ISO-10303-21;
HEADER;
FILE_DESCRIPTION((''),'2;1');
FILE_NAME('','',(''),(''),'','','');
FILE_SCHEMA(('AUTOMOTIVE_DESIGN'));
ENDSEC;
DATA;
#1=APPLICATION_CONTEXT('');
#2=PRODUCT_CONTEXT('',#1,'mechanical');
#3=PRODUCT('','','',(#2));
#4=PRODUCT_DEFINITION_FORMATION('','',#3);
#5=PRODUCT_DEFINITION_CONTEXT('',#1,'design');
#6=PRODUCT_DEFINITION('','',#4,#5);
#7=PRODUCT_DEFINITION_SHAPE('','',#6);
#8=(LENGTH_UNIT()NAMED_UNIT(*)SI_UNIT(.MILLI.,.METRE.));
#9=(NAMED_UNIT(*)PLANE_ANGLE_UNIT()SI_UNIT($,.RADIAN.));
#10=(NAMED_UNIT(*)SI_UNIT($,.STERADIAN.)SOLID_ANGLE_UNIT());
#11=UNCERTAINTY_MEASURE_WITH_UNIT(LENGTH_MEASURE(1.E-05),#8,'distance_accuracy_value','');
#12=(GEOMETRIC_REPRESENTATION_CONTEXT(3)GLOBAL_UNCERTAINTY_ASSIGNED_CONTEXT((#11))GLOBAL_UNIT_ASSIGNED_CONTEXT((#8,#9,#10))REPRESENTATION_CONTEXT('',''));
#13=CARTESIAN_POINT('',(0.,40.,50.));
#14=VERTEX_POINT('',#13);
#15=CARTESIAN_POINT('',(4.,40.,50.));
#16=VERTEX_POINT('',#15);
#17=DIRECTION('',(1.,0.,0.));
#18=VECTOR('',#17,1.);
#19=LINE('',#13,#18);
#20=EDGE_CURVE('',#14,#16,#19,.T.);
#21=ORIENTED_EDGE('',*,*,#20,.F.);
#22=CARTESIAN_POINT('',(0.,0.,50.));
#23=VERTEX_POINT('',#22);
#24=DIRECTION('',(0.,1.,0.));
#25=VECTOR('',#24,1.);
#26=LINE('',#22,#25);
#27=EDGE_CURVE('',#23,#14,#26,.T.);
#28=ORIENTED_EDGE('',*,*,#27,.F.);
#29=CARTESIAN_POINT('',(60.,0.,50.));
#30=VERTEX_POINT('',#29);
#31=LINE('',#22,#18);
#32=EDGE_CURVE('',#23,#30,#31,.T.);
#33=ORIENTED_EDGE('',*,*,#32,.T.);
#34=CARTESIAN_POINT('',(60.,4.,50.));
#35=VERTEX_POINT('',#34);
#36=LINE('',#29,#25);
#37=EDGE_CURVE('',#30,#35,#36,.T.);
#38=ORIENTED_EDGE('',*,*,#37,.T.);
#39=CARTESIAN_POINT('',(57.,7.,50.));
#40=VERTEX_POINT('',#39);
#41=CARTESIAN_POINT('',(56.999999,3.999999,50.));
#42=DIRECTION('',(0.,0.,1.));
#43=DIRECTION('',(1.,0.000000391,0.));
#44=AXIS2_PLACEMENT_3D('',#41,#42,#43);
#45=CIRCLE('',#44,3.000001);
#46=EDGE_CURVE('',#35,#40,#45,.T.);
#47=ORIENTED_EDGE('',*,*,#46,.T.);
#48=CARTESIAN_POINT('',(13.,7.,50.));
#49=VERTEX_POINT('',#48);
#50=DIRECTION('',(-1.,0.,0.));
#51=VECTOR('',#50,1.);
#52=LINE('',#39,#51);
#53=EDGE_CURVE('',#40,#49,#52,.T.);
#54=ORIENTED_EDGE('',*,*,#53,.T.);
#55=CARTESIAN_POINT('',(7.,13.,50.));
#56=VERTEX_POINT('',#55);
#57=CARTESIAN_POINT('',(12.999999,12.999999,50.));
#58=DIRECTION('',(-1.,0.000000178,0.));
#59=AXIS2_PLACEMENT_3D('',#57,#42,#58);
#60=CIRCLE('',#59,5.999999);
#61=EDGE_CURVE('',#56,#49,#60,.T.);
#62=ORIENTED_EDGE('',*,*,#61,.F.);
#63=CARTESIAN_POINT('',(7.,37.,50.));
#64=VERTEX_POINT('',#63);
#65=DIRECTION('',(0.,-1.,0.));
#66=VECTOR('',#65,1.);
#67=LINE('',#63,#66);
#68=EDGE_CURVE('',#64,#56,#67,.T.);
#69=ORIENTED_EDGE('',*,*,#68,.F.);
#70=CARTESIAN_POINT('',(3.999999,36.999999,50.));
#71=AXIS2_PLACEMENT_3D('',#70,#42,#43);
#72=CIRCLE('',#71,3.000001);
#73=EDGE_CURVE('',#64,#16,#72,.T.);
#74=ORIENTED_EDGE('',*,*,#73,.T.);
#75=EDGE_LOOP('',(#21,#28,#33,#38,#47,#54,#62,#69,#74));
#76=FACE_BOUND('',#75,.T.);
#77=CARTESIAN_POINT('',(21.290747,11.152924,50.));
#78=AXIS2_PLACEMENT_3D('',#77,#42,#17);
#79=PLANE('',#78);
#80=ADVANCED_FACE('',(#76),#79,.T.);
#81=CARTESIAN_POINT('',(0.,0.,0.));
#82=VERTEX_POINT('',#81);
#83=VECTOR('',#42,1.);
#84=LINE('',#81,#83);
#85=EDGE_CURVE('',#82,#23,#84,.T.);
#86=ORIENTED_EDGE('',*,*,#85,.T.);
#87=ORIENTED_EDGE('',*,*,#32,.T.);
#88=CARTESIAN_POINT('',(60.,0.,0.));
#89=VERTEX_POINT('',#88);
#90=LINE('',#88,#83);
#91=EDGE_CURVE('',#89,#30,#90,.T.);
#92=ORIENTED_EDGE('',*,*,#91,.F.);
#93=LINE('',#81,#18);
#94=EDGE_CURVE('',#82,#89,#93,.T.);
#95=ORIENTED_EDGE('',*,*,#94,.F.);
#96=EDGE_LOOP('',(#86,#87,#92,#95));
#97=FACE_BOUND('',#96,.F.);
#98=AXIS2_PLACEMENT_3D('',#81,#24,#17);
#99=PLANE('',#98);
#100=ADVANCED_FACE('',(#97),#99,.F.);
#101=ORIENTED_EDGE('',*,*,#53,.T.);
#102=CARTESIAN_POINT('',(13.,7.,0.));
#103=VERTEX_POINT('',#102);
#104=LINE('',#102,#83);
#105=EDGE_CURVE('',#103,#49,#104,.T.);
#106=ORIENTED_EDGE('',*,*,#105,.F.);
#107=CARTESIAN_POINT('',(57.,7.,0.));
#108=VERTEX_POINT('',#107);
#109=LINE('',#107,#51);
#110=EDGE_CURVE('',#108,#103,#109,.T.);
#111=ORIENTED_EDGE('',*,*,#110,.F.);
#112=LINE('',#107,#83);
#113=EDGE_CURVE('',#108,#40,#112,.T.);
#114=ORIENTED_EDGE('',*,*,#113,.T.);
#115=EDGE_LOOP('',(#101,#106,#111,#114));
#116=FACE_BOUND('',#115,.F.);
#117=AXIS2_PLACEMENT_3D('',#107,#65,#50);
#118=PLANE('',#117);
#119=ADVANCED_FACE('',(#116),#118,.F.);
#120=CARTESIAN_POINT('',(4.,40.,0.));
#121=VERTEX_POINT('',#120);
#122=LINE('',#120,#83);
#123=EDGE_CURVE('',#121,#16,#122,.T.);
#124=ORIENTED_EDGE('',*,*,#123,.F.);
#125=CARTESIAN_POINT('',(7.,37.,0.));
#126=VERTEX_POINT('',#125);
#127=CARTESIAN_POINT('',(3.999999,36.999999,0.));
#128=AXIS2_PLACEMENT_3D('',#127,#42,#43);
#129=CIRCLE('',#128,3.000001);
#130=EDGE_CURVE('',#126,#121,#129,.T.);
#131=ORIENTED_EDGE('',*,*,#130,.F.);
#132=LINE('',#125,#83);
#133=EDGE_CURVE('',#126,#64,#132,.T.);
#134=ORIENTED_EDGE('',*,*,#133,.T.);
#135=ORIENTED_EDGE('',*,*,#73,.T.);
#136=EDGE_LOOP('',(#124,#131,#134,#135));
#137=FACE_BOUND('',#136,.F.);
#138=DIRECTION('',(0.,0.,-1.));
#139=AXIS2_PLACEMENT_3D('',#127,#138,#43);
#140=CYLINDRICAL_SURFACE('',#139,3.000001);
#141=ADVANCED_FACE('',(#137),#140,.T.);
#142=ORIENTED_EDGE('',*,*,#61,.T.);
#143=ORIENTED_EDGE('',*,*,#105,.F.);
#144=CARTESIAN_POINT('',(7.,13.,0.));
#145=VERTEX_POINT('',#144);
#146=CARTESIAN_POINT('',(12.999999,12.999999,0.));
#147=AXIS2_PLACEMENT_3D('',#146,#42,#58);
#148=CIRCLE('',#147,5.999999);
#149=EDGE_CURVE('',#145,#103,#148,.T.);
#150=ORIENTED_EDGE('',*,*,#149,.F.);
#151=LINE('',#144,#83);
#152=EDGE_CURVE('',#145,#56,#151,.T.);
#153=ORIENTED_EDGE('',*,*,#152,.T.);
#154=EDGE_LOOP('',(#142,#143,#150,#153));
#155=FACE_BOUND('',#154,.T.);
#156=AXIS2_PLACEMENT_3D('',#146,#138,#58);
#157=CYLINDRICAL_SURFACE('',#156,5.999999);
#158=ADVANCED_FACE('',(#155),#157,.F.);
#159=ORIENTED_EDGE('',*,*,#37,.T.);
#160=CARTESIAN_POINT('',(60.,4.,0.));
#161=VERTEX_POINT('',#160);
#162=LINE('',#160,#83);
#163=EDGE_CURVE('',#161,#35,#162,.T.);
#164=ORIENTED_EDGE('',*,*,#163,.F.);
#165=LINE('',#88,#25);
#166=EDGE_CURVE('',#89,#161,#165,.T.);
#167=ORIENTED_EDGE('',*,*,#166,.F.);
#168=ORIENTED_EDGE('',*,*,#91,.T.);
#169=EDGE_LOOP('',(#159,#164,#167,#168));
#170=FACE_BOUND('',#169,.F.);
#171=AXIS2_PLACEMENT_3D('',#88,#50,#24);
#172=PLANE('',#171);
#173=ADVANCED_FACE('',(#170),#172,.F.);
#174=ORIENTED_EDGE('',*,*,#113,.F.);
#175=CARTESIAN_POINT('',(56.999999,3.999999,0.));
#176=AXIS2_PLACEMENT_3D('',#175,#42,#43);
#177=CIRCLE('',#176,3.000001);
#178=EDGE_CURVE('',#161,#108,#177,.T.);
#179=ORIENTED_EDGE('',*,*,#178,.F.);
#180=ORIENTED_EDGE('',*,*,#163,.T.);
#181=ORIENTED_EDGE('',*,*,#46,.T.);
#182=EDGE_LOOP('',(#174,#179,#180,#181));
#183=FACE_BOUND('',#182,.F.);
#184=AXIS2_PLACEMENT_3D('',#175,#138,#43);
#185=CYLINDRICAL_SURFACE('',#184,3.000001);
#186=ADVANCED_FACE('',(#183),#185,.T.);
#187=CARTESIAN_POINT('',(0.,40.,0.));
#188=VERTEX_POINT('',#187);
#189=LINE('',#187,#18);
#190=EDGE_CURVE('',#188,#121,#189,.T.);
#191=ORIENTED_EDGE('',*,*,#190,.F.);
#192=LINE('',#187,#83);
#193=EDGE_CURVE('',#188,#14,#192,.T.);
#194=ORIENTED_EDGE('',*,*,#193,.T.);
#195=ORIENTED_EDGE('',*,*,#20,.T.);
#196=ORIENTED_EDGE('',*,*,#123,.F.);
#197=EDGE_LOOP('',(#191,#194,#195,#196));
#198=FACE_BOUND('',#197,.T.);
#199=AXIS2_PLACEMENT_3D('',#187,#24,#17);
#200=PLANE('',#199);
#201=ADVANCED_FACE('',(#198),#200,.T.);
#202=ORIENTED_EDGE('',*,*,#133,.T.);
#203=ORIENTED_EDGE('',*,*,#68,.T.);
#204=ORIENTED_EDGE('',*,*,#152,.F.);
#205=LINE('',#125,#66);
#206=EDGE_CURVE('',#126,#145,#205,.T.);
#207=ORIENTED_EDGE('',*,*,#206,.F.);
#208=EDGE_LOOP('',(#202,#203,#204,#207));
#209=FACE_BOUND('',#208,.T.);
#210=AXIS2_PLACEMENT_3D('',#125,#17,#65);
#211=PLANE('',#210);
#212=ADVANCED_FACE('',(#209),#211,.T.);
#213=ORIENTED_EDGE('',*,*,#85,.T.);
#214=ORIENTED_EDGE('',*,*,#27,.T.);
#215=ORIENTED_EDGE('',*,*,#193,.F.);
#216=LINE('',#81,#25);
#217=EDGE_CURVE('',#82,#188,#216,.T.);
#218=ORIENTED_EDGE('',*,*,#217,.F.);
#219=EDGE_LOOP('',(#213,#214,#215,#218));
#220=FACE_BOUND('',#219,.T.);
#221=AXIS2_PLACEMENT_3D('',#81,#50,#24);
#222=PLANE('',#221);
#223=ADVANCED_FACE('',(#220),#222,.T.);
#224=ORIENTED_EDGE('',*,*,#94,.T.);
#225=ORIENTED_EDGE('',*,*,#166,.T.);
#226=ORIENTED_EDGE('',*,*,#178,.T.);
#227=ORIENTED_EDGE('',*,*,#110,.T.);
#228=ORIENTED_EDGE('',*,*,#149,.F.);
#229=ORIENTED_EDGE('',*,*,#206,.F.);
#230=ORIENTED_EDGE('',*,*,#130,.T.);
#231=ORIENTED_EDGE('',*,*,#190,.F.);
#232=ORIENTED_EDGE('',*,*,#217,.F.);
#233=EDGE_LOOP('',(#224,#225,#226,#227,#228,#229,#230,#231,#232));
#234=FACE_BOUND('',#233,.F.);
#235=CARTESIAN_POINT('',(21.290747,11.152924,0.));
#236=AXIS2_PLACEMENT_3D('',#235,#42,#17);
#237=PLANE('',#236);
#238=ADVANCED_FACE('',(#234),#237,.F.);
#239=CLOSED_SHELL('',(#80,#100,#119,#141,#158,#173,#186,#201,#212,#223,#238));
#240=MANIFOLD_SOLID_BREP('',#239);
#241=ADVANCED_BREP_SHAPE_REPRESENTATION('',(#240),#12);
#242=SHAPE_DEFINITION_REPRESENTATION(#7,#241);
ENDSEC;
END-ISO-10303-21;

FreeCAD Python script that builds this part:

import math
import FreeCAD as App
import Part
import Sketcher
from FreeCAD import Vector
Q = App.Units.Quantity

doc = App.newDocument("Part")
params = doc.addObject("Spreadsheet::Sheet", "Params")
for row, (alias, value) in enumerate([
    ("sketch1_radius", "3.000001 mm"),
    ("sketch1_radius2", "5.999999 mm"),
    ("sketch1_width", "60 mm"),
    ("sketch1_width2", "44 mm"),
    ("sketch1_height", "24 mm"),
    ("pad1_length", "50 mm"),
], start=1):
    params.set(f"A{row}", alias)
    params.set(f"B{row}", "=" + value)
    params.setAlias(f"B{row}", alias)

body = doc.addObject("PartDesign::Body", "Body")

# Sketch on XY plane
sketch1 = body.newObject("Sketcher::SketchObject", "Sketch")
sketch1.AttachmentSupport = (doc.getObject("XY_Plane"), [""])
sketch1.MapMode = "FlatFace"
sketch1.addGeometry(Part.LineSegment(Vector(0, 0, 0), Vector(60, 0, 0)), False)
sketch1.addGeometry(Part.LineSegment(Vector(60, 0, 0), Vector(60, 4, 0)), False)
sketch1.addGeometry(Part.ArcOfCircle(Part.Circle(Vector(57, 4, 0), Vector(0, 0, 1), 3), math.radians(0), math.radians(90)), False)
sketch1.addGeometry(Part.LineSegment(Vector(57, 7, 0), Vector(13, 7, 0)), False)
sketch1.addGeometry(Part.ArcOfCircle(Part.Circle(Vector(13, 13, 0), Vector(0, 0, 1), 6), math.radians(180), math.radians(270)), False)
sketch1.addGeometry(Part.LineSegment(Vector(7, 13, 0), Vector(7, 37, 0)), False)
sketch1.addGeometry(Part.ArcOfCircle(Part.Circle(Vector(4, 37, 0), Vector(0, 0, 1), 3), math.radians(0), math.radians(90)), False)
sketch1.addGeometry(Part.LineSegment(Vector(4, 40, 0), Vector(0, 40, 0)), False)
sketch1.addGeometry(Part.LineSegment(Vector(0, 40, 0), Vector(0, 0, 0)), False)
sketch1.addConstraint(Sketcher.Constraint("Coincident", 0, 2, 1, 1))
sketch1.addConstraint(Sketcher.Constraint("Tangent", 1, 2, 2, 1))
sketch1.addConstraint(Sketcher.Constraint("Tangent", 2, 2, 3, 1))
sketch1.addConstraint(Sketcher.Constraint("Tangent", 3, 2, 4, 2))
sketch1.addConstraint(Sketcher.Constraint("Tangent", 4, 1, 5, 1))
sketch1.addConstraint(Sketcher.Constraint("Tangent", 5, 2, 6, 1))
sketch1.addConstraint(Sketcher.Constraint("Tangent", 6, 2, 7, 1))
sketch1.addConstraint(Sketcher.Constraint("Coincident", 7, 2, 8, 1))
sketch1.addConstraint(Sketcher.Constraint("Coincident", 8, 2, 0, 1))
sketch1.addConstraint(Sketcher.Constraint("Horizontal", 0))
sketch1.addConstraint(Sketcher.Constraint("Vertical", 1))
sketch1.addConstraint(Sketcher.Constraint("Horizontal", 3))
sketch1.addConstraint(Sketcher.Constraint("Vertical", 5))
sketch1.addConstraint(Sketcher.Constraint("Horizontal", 7))
sketch1.addConstraint(Sketcher.Constraint("Vertical", 8))
sketch1.addConstraint(Sketcher.Constraint("Coincident", 8, 2, -1, 1))
sketch1.addConstraint(Sketcher.Constraint("Equal", 2, 6))
sketch1.addConstraint(Sketcher.Constraint("Equal", 7, 1))
sketch1.addConstraint(Sketcher.Constraint("Radius", 2, Q("3.000001 mm")))
sketch1.addConstraint(Sketcher.Constraint("Radius", 4, Q("5.999999 mm")))
sketch1.addConstraint(Sketcher.Constraint("DistanceX", 0, 1, 0, 2, Q("60 mm")))
sketch1.addConstraint(Sketcher.Constraint("DistanceX", 3, 2, 3, 1, Q("44 mm")))
sketch1.addConstraint(Sketcher.Constraint("DistanceY", 5, 1, 5, 2, Q("24 mm")))
sketch1.setExpression("Constraints[18]", "Params.sketch1_radius")
sketch1.setExpression("Constraints[19]", "Params.sketch1_radius2")
sketch1.setExpression("Constraints[20]", "Params.sketch1_width")
sketch1.setExpression("Constraints[21]", "Params.sketch1_width2")
sketch1.setExpression("Constraints[22]", "Params.sketch1_height")
pad1 = body.newObject("PartDesign::Pad", "Pad")
pad1.Profile = sketch1
pad1.setExpression("Length", "Params.pad1_length")

doc.recompute()
